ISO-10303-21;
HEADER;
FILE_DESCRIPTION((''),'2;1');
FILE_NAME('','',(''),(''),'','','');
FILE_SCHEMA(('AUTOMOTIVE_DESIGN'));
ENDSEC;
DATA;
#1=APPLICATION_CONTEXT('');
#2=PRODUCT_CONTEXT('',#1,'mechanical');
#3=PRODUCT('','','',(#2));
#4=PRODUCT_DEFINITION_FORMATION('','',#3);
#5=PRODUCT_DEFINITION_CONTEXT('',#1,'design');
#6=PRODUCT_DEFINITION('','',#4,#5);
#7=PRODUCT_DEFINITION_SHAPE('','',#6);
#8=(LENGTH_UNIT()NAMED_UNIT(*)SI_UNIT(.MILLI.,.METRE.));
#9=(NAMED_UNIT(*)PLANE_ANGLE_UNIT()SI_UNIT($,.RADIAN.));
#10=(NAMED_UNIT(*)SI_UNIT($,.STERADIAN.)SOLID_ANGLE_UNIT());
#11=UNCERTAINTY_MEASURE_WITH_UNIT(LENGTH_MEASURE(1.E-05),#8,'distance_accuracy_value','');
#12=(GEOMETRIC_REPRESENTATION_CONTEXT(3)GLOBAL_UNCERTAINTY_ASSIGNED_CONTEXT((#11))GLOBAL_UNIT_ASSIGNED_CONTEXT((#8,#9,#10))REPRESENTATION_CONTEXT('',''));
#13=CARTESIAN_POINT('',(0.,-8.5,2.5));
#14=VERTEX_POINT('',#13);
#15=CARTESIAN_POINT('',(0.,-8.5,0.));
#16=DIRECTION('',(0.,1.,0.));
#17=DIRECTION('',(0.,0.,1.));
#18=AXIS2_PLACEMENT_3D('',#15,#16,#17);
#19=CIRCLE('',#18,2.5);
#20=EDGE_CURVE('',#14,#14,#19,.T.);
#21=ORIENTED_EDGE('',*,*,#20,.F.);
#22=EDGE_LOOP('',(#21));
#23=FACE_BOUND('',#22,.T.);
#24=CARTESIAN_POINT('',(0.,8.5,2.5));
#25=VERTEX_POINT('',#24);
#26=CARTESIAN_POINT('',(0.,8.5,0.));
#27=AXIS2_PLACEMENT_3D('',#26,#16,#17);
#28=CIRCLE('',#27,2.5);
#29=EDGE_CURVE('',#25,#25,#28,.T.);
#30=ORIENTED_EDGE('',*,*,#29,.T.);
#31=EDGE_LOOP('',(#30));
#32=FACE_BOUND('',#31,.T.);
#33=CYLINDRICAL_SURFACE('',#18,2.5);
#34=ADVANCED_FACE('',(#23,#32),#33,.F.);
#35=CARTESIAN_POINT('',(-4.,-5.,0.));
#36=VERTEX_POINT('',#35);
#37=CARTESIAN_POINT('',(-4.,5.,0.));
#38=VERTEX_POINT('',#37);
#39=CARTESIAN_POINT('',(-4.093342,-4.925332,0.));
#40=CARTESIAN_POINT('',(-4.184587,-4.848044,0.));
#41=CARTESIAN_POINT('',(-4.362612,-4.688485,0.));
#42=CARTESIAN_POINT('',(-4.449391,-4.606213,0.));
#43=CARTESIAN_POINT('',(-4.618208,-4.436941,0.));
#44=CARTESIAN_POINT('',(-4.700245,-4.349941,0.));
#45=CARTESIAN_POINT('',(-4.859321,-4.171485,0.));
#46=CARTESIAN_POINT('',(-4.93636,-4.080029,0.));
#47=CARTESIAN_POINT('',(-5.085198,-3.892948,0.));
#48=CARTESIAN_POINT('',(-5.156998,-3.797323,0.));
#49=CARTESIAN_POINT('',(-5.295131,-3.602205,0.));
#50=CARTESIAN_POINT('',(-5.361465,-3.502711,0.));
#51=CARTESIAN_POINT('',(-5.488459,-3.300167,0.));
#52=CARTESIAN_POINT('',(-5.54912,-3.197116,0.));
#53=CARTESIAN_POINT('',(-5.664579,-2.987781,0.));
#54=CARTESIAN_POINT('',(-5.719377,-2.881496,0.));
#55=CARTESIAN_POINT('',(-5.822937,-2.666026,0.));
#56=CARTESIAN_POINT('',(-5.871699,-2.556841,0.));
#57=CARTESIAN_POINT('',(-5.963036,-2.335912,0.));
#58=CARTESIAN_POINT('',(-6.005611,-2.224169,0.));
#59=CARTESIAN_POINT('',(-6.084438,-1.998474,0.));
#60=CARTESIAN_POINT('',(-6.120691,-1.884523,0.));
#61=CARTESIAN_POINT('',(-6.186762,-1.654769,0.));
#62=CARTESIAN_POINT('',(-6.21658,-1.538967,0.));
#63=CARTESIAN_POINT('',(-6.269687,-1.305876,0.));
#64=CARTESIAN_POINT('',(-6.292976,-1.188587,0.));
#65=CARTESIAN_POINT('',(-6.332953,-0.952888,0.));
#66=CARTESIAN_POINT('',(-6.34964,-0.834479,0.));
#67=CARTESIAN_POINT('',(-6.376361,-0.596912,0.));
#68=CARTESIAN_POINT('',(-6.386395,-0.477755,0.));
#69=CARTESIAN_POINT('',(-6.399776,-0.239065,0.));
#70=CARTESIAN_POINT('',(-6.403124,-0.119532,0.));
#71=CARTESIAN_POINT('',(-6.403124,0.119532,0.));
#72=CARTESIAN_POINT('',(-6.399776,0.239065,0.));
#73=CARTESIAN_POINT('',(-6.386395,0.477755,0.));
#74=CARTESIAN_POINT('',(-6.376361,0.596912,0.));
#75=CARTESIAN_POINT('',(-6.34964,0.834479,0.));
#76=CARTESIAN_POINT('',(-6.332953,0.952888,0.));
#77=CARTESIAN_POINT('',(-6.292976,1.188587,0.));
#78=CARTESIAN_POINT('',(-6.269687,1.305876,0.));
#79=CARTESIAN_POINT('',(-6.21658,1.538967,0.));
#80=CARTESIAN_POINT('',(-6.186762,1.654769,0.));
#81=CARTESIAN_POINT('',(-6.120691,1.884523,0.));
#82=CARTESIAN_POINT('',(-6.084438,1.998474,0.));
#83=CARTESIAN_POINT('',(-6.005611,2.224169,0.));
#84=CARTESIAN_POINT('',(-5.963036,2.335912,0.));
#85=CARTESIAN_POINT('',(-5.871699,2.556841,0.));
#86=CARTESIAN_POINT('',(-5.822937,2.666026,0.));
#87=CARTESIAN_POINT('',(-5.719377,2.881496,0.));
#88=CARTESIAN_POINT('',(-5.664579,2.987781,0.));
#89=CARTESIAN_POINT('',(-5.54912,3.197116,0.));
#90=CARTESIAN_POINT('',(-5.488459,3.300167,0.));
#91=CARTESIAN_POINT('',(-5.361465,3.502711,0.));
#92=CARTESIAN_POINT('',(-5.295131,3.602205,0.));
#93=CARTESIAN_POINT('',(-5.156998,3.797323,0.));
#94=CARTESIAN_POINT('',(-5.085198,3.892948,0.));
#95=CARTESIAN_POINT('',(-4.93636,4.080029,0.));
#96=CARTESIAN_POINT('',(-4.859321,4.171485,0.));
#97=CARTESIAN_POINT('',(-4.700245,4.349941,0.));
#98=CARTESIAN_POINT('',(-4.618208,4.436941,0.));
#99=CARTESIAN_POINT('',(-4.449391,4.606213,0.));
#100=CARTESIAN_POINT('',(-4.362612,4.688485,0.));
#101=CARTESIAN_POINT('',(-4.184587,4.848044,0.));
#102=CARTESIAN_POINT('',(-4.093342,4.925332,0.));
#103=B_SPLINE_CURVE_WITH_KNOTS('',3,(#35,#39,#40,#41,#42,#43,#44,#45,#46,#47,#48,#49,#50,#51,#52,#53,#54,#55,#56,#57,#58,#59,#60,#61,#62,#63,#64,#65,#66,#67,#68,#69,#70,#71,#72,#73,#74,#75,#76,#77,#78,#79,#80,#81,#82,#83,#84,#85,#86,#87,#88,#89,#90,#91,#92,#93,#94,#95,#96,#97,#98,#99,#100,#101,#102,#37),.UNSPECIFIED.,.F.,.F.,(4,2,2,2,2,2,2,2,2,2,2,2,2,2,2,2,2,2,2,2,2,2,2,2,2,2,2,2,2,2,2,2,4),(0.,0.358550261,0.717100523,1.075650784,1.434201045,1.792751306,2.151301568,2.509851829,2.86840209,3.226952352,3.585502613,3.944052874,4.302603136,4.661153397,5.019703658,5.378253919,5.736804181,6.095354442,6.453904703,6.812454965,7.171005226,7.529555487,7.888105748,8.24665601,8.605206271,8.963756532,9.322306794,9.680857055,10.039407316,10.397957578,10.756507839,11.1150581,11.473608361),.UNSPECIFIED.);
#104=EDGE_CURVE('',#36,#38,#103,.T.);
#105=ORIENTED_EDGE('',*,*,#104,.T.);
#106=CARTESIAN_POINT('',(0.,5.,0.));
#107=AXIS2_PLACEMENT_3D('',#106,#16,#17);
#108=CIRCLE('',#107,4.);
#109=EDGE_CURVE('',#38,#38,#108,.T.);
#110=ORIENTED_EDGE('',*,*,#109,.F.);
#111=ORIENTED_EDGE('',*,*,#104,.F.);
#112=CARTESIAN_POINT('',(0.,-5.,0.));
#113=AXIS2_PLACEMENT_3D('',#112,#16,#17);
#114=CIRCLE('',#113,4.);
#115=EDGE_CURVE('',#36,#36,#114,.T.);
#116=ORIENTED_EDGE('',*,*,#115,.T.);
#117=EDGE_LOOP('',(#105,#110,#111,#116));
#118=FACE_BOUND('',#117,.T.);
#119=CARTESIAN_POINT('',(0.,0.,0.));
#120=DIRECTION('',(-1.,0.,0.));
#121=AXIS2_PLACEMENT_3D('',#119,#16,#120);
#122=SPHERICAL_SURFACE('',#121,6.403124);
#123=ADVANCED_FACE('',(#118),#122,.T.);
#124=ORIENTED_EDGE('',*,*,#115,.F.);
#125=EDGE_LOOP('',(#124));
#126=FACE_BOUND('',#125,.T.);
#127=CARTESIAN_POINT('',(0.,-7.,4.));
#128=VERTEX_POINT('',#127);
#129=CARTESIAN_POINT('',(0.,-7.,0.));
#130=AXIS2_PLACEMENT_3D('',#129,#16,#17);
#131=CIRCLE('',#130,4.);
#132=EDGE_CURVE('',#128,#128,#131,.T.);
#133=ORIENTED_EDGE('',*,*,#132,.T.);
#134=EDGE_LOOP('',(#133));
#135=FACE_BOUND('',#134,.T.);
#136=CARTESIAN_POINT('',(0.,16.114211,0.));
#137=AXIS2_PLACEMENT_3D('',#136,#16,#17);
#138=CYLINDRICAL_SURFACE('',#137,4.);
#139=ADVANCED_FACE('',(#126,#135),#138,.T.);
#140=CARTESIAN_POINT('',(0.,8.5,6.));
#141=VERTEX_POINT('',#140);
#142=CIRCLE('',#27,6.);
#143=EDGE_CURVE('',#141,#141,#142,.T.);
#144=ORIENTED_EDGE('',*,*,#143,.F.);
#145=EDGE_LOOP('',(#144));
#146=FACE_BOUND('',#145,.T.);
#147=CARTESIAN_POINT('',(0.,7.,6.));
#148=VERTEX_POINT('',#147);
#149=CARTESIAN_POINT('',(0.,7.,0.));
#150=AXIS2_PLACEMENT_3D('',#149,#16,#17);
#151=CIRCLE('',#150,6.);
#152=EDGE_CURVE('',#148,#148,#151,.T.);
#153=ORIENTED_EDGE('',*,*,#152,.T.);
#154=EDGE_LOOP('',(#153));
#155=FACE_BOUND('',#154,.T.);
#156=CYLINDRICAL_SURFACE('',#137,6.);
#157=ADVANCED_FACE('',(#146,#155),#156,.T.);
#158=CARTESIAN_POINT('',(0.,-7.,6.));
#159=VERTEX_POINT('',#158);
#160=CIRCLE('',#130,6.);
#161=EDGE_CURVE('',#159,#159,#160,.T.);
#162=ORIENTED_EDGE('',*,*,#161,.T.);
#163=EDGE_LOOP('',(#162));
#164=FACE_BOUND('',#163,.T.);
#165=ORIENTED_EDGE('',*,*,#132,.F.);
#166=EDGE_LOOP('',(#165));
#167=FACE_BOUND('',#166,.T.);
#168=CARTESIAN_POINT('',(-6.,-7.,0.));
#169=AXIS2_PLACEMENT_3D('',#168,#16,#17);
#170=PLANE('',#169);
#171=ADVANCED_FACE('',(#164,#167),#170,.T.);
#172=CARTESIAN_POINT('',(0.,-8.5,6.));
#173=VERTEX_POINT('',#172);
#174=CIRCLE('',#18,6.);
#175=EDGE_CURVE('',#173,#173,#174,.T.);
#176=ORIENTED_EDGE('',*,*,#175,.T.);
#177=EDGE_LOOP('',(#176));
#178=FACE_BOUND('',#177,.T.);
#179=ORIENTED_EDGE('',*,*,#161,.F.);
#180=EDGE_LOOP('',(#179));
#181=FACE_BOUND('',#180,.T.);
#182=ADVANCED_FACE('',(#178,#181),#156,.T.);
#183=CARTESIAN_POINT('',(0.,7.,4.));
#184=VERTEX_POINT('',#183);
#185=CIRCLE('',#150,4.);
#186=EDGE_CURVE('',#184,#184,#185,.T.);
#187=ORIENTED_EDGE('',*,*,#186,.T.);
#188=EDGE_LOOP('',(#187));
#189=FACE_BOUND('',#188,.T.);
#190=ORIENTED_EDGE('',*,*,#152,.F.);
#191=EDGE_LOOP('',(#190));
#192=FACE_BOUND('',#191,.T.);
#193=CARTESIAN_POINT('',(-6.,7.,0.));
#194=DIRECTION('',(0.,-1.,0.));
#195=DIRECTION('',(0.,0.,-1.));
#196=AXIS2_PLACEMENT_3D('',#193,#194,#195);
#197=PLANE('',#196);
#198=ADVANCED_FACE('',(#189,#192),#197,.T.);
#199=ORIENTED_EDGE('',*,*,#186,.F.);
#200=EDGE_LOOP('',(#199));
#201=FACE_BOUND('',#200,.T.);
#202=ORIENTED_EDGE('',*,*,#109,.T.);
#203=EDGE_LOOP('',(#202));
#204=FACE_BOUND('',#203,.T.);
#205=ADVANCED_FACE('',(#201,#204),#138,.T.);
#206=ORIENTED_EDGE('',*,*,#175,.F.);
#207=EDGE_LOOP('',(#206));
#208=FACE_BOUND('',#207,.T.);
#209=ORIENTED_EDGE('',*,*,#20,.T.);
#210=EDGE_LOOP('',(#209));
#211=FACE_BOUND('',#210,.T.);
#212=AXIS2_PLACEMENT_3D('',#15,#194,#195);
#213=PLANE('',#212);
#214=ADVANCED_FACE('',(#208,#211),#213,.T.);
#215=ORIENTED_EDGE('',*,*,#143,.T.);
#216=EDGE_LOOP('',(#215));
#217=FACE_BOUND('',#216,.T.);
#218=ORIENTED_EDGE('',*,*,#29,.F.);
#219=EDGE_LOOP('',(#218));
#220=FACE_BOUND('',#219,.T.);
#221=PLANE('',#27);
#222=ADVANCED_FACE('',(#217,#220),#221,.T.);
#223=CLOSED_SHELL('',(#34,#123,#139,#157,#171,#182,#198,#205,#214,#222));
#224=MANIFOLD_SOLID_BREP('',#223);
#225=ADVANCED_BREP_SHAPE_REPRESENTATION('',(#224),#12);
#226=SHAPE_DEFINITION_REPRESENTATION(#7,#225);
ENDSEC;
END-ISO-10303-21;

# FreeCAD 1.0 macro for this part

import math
import FreeCAD as App
import Part
import Sketcher

V = App.Vector
Q = App.Units.Quantity

doc = App.newDocument("Part")
body = doc.addObject("PartDesign::Body", "Body")

# Sketch on XY plane
sketch1 = body.newObject("Sketcher::SketchObject", "Sketch")
sketch1.AttachmentSupport = (doc.getObject("XY_Plane"), [""])
sketch1.MapMode = "FlatFace"
sketch1.addGeometry([
    Part.LineSegment(V(-6, 7, 0), V(-4, 7, 0)),  # 0
    Part.LineSegment(V(-4, 7, 0), V(-4, 5, 0)),  # 1
    Part.ArcOfCircle(Part.Circle(V(0, 0, 0), V(0, 0, 1), 6.4), math.radians(129), math.radians(231)),  # 2
    Part.LineSegment(V(-4, -5, 0), V(-4, -7, 0)),  # 3
    Part.LineSegment(V(-4, -7, 0), V(-6, -7, 0)),  # 4
    Part.LineSegment(V(-6, -7, 0), V(-6, -8.5, 0)),  # 5
    Part.LineSegment(V(-6, -8.5, 0), V(0, -8.5, 0)),  # 6
    Part.LineSegment(V(0, -8.5, 0), V(0, 8.5, 0)),  # 7
    Part.LineSegment(V(0, 8.5, 0), V(-6, 8.5, 0)),  # 8
    Part.LineSegment(V(-6, 8.5, 0), V(-6, 7, 0)),  # 9
], False)
sketch1.addConstraint([
    Sketcher.Constraint("Coincident", 0, 2, 1, 1),
    Sketcher.Constraint("Coincident", 1, 2, 2, 1),
    Sketcher.Constraint("Coincident", 2, 2, 3, 1),
    Sketcher.Constraint("Coincident", 3, 2, 4, 1),
    Sketcher.Constraint("Coincident", 4, 2, 5, 1),
    Sketcher.Constraint("Coincident", 5, 2, 6, 1),
    Sketcher.Constraint("Coincident", 6, 2, 7, 1),
    Sketcher.Constraint("Coincident", 7, 2, 8, 1),
    Sketcher.Constraint("Coincident", 8, 2, 9, 1),
    Sketcher.Constraint("Coincident", 9, 2, 0, 1),
    Sketcher.Constraint("Horizontal", 0),
    Sketcher.Constraint("Vertical", 1),
    Sketcher.Constraint("Vertical", 3),
    Sketcher.Constraint("Horizontal", 4),
    Sketcher.Constraint("Vertical", 5),
    Sketcher.Constraint("Horizontal", 6),
    Sketcher.Constraint("Vertical", 7),
    Sketcher.Constraint("Horizontal", 8),
    Sketcher.Constraint("Vertical", 9),
    Sketcher.Constraint("Coincident", 2, 3, -1, 1),
    Sketcher.Constraint("Symmetric", 6, 2, 7, 2, -1, 1),
    Sketcher.Constraint("Symmetric", 0, 2, 3, 2, -1),
    Sketcher.Constraint("Vertical", 5, 2, 8, 2),
    Sketcher.Constraint("Equal", 4, 1),
    Sketcher.Constraint("DistanceX", 0, 1, 0, 2, Q("2 mm")),
    Sketcher.Constraint("DistanceX", 6, 1, 6, 2, Q("6 mm")),
    Sketcher.Constraint("DistanceY", 7, 1, 7, 2, Q("17 mm")),
    Sketcher.Constraint("DistanceY", 5, 2, 5, 1, Q("1.5 mm")),
])
revolution = body.newObject("PartDesign::Revolution", "Revolution")
revolution.Profile = sketch1
revolution.ReferenceAxis = (sketch1, ["V_Axis"])
revolution.Angle = 360

# Sketch on XZ plane
sketch2 = body.newObject("Sketcher::SketchObject", "Sketch001")
sketch2.AttachmentSupport = (doc.getObject("XZ_Plane"), [""])
sketch2.MapMode = "FlatFace"
sketch2.AttachmentOffset = App.Placement(V(0, 0, -8.5), App.Rotation())
sketch2.addGeometry(Part.Circle(V(0, 0, 0), V(0, 0, 1), 2.5), False)
sketch2.addConstraint([
    Sketcher.Constraint("Coincident", 0, 3, -1, 1),
    Sketcher.Constraint("Diameter", 0, Q("5 mm")),
])
pocket1 = body.newObject("PartDesign::Pocket", "Pocket")
pocket1.Profile = sketch2
pocket1.Type = "ThroughAll"
pocket1.Reversed = True

doc.recompute()
